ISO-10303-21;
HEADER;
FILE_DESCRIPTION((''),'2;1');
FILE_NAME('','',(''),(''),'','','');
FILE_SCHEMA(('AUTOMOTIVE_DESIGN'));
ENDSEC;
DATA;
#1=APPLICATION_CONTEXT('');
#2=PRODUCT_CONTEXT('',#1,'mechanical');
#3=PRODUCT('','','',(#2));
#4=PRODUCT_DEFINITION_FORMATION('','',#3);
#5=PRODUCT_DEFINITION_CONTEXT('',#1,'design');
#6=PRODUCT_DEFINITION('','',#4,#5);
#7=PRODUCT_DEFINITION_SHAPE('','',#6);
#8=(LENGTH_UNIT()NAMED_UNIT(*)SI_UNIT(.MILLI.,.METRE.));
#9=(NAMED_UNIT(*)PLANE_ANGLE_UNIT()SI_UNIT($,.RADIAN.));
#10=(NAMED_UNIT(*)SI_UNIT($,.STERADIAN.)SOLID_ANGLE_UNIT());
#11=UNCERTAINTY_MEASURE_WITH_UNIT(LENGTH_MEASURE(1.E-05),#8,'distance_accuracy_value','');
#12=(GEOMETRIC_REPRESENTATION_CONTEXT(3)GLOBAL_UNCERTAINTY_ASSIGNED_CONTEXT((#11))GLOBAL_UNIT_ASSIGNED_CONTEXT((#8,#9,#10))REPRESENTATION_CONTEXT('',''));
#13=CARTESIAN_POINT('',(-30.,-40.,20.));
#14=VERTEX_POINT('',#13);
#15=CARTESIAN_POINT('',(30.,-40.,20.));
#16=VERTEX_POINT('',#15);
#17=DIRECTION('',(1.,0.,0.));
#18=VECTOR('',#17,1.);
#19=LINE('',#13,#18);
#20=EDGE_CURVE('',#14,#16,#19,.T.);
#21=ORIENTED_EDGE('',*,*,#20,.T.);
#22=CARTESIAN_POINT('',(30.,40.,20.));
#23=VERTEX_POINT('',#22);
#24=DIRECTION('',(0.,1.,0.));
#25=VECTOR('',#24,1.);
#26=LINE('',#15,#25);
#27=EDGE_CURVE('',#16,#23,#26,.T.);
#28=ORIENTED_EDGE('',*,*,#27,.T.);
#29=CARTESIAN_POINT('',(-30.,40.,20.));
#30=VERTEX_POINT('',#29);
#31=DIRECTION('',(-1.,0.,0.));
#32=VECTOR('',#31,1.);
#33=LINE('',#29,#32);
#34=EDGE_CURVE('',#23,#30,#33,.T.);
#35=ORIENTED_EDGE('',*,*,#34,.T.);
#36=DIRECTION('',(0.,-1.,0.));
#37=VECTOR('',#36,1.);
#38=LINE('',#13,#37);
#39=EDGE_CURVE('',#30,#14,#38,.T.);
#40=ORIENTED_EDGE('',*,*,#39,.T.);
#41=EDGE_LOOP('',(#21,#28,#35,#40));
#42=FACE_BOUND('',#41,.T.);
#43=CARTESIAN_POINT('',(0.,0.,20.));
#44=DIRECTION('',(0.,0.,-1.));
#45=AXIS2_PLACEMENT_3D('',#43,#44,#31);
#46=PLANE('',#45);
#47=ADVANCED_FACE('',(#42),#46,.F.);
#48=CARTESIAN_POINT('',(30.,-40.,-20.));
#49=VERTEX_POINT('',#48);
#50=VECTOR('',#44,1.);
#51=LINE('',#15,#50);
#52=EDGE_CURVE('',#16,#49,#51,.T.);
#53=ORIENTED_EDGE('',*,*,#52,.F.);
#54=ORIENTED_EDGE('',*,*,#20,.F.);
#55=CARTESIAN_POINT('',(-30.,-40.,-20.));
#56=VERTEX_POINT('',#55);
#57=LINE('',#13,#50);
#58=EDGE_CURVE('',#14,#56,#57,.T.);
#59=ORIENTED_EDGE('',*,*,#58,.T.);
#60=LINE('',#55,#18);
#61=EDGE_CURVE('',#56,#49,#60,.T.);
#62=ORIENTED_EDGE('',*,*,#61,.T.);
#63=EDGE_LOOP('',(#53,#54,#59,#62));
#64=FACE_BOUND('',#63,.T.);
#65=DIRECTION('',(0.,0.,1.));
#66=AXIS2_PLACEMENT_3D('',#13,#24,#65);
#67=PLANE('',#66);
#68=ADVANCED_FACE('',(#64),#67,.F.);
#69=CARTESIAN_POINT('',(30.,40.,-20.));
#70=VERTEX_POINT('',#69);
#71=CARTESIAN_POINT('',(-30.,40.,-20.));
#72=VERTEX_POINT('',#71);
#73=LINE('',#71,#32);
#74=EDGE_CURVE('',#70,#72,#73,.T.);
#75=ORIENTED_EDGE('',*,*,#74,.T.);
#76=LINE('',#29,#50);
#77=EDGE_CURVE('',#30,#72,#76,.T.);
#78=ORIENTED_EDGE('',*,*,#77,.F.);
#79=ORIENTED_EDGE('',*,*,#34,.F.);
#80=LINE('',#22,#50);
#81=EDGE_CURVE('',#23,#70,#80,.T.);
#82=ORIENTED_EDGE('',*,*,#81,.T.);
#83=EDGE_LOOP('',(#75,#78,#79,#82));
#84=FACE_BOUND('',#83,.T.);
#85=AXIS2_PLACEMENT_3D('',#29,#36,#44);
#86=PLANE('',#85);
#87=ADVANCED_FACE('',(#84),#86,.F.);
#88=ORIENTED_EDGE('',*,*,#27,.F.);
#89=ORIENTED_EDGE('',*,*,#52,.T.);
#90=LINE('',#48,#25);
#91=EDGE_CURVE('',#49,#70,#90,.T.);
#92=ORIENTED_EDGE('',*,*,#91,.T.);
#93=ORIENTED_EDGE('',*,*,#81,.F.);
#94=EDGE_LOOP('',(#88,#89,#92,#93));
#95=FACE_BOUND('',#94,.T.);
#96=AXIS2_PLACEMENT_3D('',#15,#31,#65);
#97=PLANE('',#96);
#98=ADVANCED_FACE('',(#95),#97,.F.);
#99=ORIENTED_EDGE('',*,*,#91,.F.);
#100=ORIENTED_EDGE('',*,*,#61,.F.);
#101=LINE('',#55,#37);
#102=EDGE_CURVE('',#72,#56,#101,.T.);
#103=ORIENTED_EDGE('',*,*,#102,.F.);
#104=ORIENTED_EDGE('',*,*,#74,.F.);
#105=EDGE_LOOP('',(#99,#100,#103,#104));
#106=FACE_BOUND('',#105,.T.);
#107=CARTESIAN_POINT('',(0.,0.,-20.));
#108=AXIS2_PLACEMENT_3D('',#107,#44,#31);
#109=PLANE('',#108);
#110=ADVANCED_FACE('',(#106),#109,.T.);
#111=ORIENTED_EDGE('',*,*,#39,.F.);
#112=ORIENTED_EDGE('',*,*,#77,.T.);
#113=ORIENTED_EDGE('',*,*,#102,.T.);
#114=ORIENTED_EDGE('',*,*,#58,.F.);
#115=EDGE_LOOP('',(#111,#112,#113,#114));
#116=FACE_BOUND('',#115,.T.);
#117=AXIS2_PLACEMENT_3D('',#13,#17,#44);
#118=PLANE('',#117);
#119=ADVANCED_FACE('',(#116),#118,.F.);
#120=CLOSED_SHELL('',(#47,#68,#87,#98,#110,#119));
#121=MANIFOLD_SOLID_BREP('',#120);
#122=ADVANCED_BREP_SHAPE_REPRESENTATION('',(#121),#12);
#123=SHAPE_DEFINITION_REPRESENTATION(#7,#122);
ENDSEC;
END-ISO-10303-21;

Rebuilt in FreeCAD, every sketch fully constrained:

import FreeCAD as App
import Part
import Sketcher

V = App.Vector

doc = App.newDocument("Part")
params = doc.addObject("Spreadsheet::Sheet", "Params")
for row, (alias, value) in enumerate([
    ("sketch1_width", "60 mm"),
    ("sketch1_height", "80 mm"),
    ("pad1_length", "40 mm"),
], start=1):
    params.set(f"A{row}", alias)
    params.set(f"B{row}", "=" + value)
    params.setAlias(f"B{row}", alias)

body = doc.addObject("PartDesign::Body", "Body")

# Sketch on XY plane
sketch1 = body.newObject("Sketcher::SketchObject", "Sketch")
sketch1.AttachmentSupport = (doc.getObject("XY_Plane"), [""])
sketch1.MapMode = "FlatFace"
sketch1.addGeometry([
    Part.LineSegment(V(-30, 40, 0), V(-30, -40, 0)),
    Part.LineSegment(V(-30, -40, 0), V(30, -40, 0)),
    Part.LineSegment(V(30, -40, 0), V(30, 40, 0)),
    Part.LineSegment(V(30, 40, 0), V(-30, 40, 0)),
], False)
sketch1.addConstraint([
    Sketcher.Constraint("Coincident", 0, 2, 1, 1),
    Sketcher.Constraint("Coincident", 1, 2, 2, 1),
    Sketcher.Constraint("Coincident", 2, 2, 3, 1),
    Sketcher.Constraint("Coincident", 3, 2, 0, 1),
    Sketcher.Constraint("Vertical", 0),
    Sketcher.Constraint("Horizontal", 1),
    Sketcher.Constraint("Vertical", 2),
    Sketcher.Constraint("Horizontal", 3),
    Sketcher.Constraint("Symmetric", 0, 2, 2, 2, -1, 1),
    Sketcher.Constraint("DistanceX", 1, 1, 1, 2, 60.0),
    Sketcher.Constraint("DistanceY", 0, 2, 0, 1, 80.0),
])
sketch1.setExpression("Constraints[9]", "Params.sketch1_width")
sketch1.setExpression("Constraints[10]", "Params.sketch1_height")
pad1 = body.newObject("PartDesign::Pad", "Pad")
pad1.Profile = sketch1
pad1.setExpression("Length", "Params.pad1_length")
pad1.Midplane = True

doc.recompute()
